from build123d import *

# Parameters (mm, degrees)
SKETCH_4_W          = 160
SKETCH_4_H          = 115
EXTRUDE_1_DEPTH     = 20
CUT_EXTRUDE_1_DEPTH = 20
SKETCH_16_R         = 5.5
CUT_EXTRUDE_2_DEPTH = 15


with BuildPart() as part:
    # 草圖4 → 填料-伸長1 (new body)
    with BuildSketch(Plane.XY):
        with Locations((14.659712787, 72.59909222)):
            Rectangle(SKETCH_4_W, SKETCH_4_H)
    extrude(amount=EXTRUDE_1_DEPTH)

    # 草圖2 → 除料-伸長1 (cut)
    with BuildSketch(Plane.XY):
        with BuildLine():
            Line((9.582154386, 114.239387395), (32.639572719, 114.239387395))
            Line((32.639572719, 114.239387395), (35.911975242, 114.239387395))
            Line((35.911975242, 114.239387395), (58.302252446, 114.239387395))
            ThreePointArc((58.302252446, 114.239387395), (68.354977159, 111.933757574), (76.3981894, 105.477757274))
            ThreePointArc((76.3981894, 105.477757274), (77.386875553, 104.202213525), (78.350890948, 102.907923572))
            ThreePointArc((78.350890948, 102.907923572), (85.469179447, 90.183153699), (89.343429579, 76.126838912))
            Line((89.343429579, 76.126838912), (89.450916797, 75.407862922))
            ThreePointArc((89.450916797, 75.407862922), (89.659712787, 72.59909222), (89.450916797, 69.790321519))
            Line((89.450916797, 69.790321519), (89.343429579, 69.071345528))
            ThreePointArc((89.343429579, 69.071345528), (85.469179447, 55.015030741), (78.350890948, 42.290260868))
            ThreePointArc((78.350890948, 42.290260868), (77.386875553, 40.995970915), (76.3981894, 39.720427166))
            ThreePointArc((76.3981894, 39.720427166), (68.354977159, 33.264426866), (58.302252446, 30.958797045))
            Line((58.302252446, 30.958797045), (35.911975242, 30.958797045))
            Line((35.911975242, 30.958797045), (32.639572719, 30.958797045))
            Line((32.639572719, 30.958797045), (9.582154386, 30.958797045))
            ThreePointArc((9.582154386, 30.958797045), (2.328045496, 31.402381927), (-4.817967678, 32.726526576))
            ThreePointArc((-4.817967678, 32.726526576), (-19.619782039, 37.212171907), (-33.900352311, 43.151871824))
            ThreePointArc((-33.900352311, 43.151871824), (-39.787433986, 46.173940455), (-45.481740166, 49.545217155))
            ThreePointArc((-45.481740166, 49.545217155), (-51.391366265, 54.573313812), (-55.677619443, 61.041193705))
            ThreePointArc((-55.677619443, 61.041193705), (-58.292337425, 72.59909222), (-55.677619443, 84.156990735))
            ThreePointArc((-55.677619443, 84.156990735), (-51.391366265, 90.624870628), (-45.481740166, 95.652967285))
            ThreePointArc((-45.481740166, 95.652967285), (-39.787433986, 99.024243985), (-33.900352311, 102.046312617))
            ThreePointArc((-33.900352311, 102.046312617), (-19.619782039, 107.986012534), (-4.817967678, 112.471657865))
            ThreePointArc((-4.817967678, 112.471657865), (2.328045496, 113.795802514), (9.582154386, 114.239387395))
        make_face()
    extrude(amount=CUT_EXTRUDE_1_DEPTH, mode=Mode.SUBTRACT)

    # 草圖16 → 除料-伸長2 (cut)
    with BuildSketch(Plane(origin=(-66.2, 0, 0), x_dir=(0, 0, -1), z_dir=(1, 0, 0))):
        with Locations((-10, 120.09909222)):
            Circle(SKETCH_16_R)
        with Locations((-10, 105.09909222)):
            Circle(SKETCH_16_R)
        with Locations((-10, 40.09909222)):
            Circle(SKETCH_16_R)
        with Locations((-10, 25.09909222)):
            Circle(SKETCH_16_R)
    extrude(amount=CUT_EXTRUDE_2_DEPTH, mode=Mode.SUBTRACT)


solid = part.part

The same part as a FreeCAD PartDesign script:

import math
import FreeCAD as App
import Part
import Sketcher


def add_polygon(sketch, points):
    """Adds a closed chain of lines whose ends are joined by coincident constraints."""
    first, n = sketch.GeometryCount, len(points)
    for a, b in zip(points, points[1:] + points[:1]):
        sketch.addGeometry(Part.LineSegment(App.Vector(*a, 0), App.Vector(*b, 0)), False)
    for i in range(n):
        sketch.addConstraint(Sketcher.Constraint("Coincident", first + i, 2, first + (i + 1) % n, 1))

doc = App.newDocument("Part")
body = doc.addObject("PartDesign::Body", "Body")

sketch1 = body.newObject("Sketcher::SketchObject", "Sketch")
sketch1.AttachmentSupport = (doc.getObject("XY_Plane"), [""])
sketch1.MapMode = "FlatFace"
add_polygon(sketch1, [(-65, 130), (-65, 15), (95, 15), (95, 130)])
sketch1.addConstraint([
    Sketcher.Constraint("Vertical", 0),
    Sketcher.Constraint("Horizontal", 1),
    Sketcher.Constraint("Vertical", 2),
    Sketcher.Constraint("Horizontal", 3),
    Sketcher.Constraint("DistanceX", 1, 1, 1, 2, 160.0),
    Sketcher.Constraint("DistanceY", 0, 2, 0, 1, 115.0),
    Sketcher.Constraint("DistanceX", 0, 2, -1, 1, 65.340287),
    Sketcher.Constraint("DistanceY", -1, 1, 0, 2, 15.099092),
])
pad1 = body.newObject("PartDesign::Pad", "Pad")
pad1.Profile = sketch1
pad1.Length = 20

sketch2 = body.newObject("Sketcher::SketchObject", "Sketch001")
sketch2.AttachmentSupport = (doc.getObject("XY_Plane"), [""])
sketch2.MapMode = "FlatFace"
sketch2.addGeometry([
    Part.LineSegment(App.Vector(58.3, 114.2, 0), App.Vector(9.6, 114.2, 0)),
    Part.ArcOfCircle(Part.Circle(App.Vector(9.6, 54.7, 0), App.Vector(0, 0, 1), 59.5), math.radians(90), math.radians(104)),
    Part.ArcOfCircle(Part.Circle(App.Vector(32.6, -37.8, 0), App.Vector(0, 0, 1), 154.9), math.radians(104), math.radians(115.45)),
    Part.ArcOfCircle(Part.Circle(App.Vector(13.3, 2.9, 0), App.Vector(0, 0, 1), 109.8), math.radians(115.45), math.radians(122.35)),
    Part.ArcOfCircle(Part.Circle(App.Vector(-30.6, 72.2, 0), App.Vector(0, 0, 1), 27.7), math.radians(122), math.radians(155)),
    Part.ArcOfCircle(Part.Circle(App.Vector(-31.4, 72.6, 0), App.Vector(0, 0, 1), 26.9), math.radians(155), math.radians(205)),
    Part.ArcOfCircle(Part.Circle(App.Vector(-30.6, 73, 0), App.Vector(0, 0, 1), 27.7), math.radians(-155), math.radians(-122)),
    Part.ArcOfCircle(Part.Circle(App.Vector(13.3, 142.3, 0), App.Vector(0, 0, 1), 109.8), math.radians(-122.35), math.radians(-115.45)),
    Part.ArcOfCircle(Part.Circle(App.Vector(32.6, 183, 0), App.Vector(0, 0, 1), 154.9), math.radians(-115.45), math.radians(-104)),
    Part.ArcOfCircle(Part.Circle(App.Vector(9.6, 90.5, 0), App.Vector(0, 0, 1), 59.5), math.radians(-104), math.radians(-90)),
    Part.LineSegment(App.Vector(9.6, 31, 0), App.Vector(58.3, 31, 0)),
    Part.ArcOfCircle(Part.Circle(App.Vector(58.3, 54, 0), App.Vector(0, 0, 1), 23.1), math.radians(-90), math.radians(-38)),
    Part.ArcOfCircle(Part.Circle(App.Vector(10.5, 91.9, 0), App.Vector(0, 0, 1), 84.1), math.radians(-38.33), math.radians(-36.13)),
    Part.ArcOfCircle(Part.Circle(App.Vector(29.4, 78, 0), App.Vector(0, 0, 1), 60.6), math.radians(-36), math.radians(-9)),
    Part.LineSegment(App.Vector(89.3, 69.1, 0), App.Vector(89.5, 69.8, 0)),
    Part.ArcOfCircle(Part.Circle(App.Vector(70.7, 72.6, 0), App.Vector(0, 0, 1), 19), math.radians(-8.5), math.radians(8.5)),
    Part.LineSegment(App.Vector(89.5, 75.4, 0), App.Vector(89.3, 76.1, 0)),
    Part.ArcOfCircle(Part.Circle(App.Vector(29.4, 67.2, 0), App.Vector(0, 0, 1), 60.6), math.radians(9), math.radians(36)),
    Part.ArcOfCircle(Part.Circle(App.Vector(10.5, 53.3, 0), App.Vector(0, 0, 1), 84.1), math.radians(36.13), math.radians(38.33)),
    Part.ArcOfCircle(Part.Circle(App.Vector(58.3, 91.2, 0), App.Vector(0, 0, 1), 23.1), math.radians(38), math.radians(90)),
], False)
sketch2.addConstraint([
    Sketcher.Constraint("Tangent", 0, 2, 1, 1),
    Sketcher.Constraint("Tangent", 1, 2, 2, 1),
    Sketcher.Constraint("Tangent", 2, 2, 3, 1),
    Sketcher.Constraint("Tangent", 3, 2, 4, 1),
    Sketcher.Constraint("Tangent", 4, 2, 5, 1),
    Sketcher.Constraint("Tangent", 5, 2, 6, 1),
    Sketcher.Constraint("Tangent", 6, 2, 7, 1),
    Sketcher.Constraint("Tangent", 7, 2, 8, 1),
    Sketcher.Constraint("Tangent", 8, 2, 9, 1),
    Sketcher.Constraint("Tangent", 9, 2, 10, 1),
    Sketcher.Constraint("Tangent", 10, 2, 11, 1),
    Sketcher.Constraint("Tangent", 11, 2, 12, 1),
    Sketcher.Constraint("Tangent", 12, 2, 13, 1),
    Sketcher.Constraint("Tangent", 13, 2, 14, 1),
    Sketcher.Constraint("Tangent", 14, 2, 15, 1),
    Sketcher.Constraint("Tangent", 15, 2, 16, 1),
    Sketcher.Constraint("Tangent", 16, 2, 17, 1),
    Sketcher.Constraint("Tangent", 17, 2, 18, 1),
    Sketcher.Constraint("Tangent", 18, 2, 19, 1),
    Sketcher.Constraint("Tangent", 19, 2, 0, 1),
    Sketcher.Constraint("Horizontal", 0),
    Sketcher.Constraint("Horizontal", 10),
    Sketcher.Constraint("Equal", 4, 6),
    Sketcher.Constraint("Equal", 3, 7),
    Sketcher.Constraint("Equal", 2, 8),
    Sketcher.Constraint("Equal", 1, 9),
    Sketcher.Constraint("Equal", 13, 17),
    Sketcher.Constraint("Equal", 12, 18),
    Sketcher.Constraint("Equal", 11, 19),
    Sketcher.Constraint("Horizontal", 5, 3, 15, 3),
    Sketcher.Constraint("Vertical", 4, 3, 6, 3),
    Sketcher.Constraint("Vertical", 3, 3, 7, 3),
    Sketcher.Constraint("Vertical", 2, 3, 8, 3),
    Sketcher.Constraint("Vertical", 1, 3, 9, 3),
    Sketcher.Constraint("Vertical", 13, 3, 17, 3),
    Sketcher.Constraint("Vertical", 12, 3, 18, 3),
    Sketcher.Constraint("Vertical", 11, 3, 19, 3),
    Sketcher.Constraint("Radius", 2, 154.865758),
    Sketcher.Constraint("Radius", 3, 109.782792),
    Sketcher.Constraint("Radius", 12, 84.057359),
    Sketcher.Constraint("DistanceX", 0, 2, 0, 1, 48.720098),
    Sketcher.Constraint("Radius", 1, 59.536366),
    Sketcher.Constraint("Radius", 4, 27.746163),
    Sketcher.Constraint("Radius", 5, 26.852182),
    Sketcher.Constraint("Radius", 11, 23.068144),
    Sketcher.Constraint("Radius", 13, 60.624256),
    Sketcher.Constraint("Radius", 15, 18.996506),
    Sketcher.Constraint("DistanceY", -1, 1, 4, 3, 72.214299),
    Sketcher.Constraint("DistanceY", 11, 3, 19, 3, 37.144302),
    Sketcher.Constraint("DistanceY", 5, 3, 4, 2, 11.557899),
    Sketcher.Constraint("DistanceX", 11, 2, 12, 2, 1.952702),
    Sketcher.Constraint("DistanceY", 2, 3, -1, 1, 37.795889),
    Sketcher.Constraint("DistanceY", -1, 1, 3, 3, 2.91357),
    Sketcher.Constraint("DistanceY", -1, 1, 12, 3, 91.85153),
    Sketcher.Constraint("DistanceX", -1, 1, 13, 3, 29.385512),
    Sketcher.Constraint("DistanceX", -1, 1, 13, 2, 89.34343),
])
pocket1 = body.newObject("PartDesign::Pocket", "Pocket")
pocket1.Profile = sketch2
pocket1.Length = 20
pocket1.Reversed = True

sketch3 = body.newObject("Sketcher::SketchObject", "Sketch002")
sketch3.AttachmentSupport = (doc.getObject("YZ_Plane"), [""])
sketch3.MapMode = "FlatFace"
sketch3.AttachmentOffset = App.Placement(App.Vector(0, 0, -66.2), App.Rotation())
sketch3.addGeometry([
    Part.Circle(App.Vector(120, 10, 0), App.Vector(0, 0, 1), 6),
    Part.Circle(App.Vector(105, 10, 0), App.Vector(0, 0, 1), 6),
    Part.Circle(App.Vector(40, 10, 0), App.Vector(0, 0, 1), 6),
    Part.Circle(App.Vector(25, 10, 0), App.Vector(0, 0, 1), 6),
], False)
sketch3.addConstraint([
    Sketcher.Constraint("Equal", 0, 1),
    Sketcher.Constraint("Equal", 1, 2),
    Sketcher.Constraint("Equal", 2, 3),
    Sketcher.Constraint("Horizontal", 0, 3, 1, 3),
    Sketcher.Constraint("Horizontal", 1, 3, 2, 3),
    Sketcher.Constraint("Horizontal", 2, 3, 3, 3),
    Sketcher.Constraint("Diameter", 0, 11.0),
    Sketcher.Constraint("DistanceY", -1, 1, 0, 3, 10.0),
    Sketcher.Constraint("DistanceX", 1, 3, 0, 3, 15.0),
    Sketcher.Constraint("DistanceX", 2, 3, 1, 3, 65.0),
    Sketcher.Constraint("DistanceX", 3, 3, 2, 3, 15.0),
    Sketcher.Constraint("DistanceX", -1, 1, 0, 3, 120.099092),
])
pocket2 = body.newObject("PartDesign::Pocket", "Pocket001")
pocket2.Profile = sketch3
pocket2.Length = 15
pocket2.Reversed = True

doc.recompute()
